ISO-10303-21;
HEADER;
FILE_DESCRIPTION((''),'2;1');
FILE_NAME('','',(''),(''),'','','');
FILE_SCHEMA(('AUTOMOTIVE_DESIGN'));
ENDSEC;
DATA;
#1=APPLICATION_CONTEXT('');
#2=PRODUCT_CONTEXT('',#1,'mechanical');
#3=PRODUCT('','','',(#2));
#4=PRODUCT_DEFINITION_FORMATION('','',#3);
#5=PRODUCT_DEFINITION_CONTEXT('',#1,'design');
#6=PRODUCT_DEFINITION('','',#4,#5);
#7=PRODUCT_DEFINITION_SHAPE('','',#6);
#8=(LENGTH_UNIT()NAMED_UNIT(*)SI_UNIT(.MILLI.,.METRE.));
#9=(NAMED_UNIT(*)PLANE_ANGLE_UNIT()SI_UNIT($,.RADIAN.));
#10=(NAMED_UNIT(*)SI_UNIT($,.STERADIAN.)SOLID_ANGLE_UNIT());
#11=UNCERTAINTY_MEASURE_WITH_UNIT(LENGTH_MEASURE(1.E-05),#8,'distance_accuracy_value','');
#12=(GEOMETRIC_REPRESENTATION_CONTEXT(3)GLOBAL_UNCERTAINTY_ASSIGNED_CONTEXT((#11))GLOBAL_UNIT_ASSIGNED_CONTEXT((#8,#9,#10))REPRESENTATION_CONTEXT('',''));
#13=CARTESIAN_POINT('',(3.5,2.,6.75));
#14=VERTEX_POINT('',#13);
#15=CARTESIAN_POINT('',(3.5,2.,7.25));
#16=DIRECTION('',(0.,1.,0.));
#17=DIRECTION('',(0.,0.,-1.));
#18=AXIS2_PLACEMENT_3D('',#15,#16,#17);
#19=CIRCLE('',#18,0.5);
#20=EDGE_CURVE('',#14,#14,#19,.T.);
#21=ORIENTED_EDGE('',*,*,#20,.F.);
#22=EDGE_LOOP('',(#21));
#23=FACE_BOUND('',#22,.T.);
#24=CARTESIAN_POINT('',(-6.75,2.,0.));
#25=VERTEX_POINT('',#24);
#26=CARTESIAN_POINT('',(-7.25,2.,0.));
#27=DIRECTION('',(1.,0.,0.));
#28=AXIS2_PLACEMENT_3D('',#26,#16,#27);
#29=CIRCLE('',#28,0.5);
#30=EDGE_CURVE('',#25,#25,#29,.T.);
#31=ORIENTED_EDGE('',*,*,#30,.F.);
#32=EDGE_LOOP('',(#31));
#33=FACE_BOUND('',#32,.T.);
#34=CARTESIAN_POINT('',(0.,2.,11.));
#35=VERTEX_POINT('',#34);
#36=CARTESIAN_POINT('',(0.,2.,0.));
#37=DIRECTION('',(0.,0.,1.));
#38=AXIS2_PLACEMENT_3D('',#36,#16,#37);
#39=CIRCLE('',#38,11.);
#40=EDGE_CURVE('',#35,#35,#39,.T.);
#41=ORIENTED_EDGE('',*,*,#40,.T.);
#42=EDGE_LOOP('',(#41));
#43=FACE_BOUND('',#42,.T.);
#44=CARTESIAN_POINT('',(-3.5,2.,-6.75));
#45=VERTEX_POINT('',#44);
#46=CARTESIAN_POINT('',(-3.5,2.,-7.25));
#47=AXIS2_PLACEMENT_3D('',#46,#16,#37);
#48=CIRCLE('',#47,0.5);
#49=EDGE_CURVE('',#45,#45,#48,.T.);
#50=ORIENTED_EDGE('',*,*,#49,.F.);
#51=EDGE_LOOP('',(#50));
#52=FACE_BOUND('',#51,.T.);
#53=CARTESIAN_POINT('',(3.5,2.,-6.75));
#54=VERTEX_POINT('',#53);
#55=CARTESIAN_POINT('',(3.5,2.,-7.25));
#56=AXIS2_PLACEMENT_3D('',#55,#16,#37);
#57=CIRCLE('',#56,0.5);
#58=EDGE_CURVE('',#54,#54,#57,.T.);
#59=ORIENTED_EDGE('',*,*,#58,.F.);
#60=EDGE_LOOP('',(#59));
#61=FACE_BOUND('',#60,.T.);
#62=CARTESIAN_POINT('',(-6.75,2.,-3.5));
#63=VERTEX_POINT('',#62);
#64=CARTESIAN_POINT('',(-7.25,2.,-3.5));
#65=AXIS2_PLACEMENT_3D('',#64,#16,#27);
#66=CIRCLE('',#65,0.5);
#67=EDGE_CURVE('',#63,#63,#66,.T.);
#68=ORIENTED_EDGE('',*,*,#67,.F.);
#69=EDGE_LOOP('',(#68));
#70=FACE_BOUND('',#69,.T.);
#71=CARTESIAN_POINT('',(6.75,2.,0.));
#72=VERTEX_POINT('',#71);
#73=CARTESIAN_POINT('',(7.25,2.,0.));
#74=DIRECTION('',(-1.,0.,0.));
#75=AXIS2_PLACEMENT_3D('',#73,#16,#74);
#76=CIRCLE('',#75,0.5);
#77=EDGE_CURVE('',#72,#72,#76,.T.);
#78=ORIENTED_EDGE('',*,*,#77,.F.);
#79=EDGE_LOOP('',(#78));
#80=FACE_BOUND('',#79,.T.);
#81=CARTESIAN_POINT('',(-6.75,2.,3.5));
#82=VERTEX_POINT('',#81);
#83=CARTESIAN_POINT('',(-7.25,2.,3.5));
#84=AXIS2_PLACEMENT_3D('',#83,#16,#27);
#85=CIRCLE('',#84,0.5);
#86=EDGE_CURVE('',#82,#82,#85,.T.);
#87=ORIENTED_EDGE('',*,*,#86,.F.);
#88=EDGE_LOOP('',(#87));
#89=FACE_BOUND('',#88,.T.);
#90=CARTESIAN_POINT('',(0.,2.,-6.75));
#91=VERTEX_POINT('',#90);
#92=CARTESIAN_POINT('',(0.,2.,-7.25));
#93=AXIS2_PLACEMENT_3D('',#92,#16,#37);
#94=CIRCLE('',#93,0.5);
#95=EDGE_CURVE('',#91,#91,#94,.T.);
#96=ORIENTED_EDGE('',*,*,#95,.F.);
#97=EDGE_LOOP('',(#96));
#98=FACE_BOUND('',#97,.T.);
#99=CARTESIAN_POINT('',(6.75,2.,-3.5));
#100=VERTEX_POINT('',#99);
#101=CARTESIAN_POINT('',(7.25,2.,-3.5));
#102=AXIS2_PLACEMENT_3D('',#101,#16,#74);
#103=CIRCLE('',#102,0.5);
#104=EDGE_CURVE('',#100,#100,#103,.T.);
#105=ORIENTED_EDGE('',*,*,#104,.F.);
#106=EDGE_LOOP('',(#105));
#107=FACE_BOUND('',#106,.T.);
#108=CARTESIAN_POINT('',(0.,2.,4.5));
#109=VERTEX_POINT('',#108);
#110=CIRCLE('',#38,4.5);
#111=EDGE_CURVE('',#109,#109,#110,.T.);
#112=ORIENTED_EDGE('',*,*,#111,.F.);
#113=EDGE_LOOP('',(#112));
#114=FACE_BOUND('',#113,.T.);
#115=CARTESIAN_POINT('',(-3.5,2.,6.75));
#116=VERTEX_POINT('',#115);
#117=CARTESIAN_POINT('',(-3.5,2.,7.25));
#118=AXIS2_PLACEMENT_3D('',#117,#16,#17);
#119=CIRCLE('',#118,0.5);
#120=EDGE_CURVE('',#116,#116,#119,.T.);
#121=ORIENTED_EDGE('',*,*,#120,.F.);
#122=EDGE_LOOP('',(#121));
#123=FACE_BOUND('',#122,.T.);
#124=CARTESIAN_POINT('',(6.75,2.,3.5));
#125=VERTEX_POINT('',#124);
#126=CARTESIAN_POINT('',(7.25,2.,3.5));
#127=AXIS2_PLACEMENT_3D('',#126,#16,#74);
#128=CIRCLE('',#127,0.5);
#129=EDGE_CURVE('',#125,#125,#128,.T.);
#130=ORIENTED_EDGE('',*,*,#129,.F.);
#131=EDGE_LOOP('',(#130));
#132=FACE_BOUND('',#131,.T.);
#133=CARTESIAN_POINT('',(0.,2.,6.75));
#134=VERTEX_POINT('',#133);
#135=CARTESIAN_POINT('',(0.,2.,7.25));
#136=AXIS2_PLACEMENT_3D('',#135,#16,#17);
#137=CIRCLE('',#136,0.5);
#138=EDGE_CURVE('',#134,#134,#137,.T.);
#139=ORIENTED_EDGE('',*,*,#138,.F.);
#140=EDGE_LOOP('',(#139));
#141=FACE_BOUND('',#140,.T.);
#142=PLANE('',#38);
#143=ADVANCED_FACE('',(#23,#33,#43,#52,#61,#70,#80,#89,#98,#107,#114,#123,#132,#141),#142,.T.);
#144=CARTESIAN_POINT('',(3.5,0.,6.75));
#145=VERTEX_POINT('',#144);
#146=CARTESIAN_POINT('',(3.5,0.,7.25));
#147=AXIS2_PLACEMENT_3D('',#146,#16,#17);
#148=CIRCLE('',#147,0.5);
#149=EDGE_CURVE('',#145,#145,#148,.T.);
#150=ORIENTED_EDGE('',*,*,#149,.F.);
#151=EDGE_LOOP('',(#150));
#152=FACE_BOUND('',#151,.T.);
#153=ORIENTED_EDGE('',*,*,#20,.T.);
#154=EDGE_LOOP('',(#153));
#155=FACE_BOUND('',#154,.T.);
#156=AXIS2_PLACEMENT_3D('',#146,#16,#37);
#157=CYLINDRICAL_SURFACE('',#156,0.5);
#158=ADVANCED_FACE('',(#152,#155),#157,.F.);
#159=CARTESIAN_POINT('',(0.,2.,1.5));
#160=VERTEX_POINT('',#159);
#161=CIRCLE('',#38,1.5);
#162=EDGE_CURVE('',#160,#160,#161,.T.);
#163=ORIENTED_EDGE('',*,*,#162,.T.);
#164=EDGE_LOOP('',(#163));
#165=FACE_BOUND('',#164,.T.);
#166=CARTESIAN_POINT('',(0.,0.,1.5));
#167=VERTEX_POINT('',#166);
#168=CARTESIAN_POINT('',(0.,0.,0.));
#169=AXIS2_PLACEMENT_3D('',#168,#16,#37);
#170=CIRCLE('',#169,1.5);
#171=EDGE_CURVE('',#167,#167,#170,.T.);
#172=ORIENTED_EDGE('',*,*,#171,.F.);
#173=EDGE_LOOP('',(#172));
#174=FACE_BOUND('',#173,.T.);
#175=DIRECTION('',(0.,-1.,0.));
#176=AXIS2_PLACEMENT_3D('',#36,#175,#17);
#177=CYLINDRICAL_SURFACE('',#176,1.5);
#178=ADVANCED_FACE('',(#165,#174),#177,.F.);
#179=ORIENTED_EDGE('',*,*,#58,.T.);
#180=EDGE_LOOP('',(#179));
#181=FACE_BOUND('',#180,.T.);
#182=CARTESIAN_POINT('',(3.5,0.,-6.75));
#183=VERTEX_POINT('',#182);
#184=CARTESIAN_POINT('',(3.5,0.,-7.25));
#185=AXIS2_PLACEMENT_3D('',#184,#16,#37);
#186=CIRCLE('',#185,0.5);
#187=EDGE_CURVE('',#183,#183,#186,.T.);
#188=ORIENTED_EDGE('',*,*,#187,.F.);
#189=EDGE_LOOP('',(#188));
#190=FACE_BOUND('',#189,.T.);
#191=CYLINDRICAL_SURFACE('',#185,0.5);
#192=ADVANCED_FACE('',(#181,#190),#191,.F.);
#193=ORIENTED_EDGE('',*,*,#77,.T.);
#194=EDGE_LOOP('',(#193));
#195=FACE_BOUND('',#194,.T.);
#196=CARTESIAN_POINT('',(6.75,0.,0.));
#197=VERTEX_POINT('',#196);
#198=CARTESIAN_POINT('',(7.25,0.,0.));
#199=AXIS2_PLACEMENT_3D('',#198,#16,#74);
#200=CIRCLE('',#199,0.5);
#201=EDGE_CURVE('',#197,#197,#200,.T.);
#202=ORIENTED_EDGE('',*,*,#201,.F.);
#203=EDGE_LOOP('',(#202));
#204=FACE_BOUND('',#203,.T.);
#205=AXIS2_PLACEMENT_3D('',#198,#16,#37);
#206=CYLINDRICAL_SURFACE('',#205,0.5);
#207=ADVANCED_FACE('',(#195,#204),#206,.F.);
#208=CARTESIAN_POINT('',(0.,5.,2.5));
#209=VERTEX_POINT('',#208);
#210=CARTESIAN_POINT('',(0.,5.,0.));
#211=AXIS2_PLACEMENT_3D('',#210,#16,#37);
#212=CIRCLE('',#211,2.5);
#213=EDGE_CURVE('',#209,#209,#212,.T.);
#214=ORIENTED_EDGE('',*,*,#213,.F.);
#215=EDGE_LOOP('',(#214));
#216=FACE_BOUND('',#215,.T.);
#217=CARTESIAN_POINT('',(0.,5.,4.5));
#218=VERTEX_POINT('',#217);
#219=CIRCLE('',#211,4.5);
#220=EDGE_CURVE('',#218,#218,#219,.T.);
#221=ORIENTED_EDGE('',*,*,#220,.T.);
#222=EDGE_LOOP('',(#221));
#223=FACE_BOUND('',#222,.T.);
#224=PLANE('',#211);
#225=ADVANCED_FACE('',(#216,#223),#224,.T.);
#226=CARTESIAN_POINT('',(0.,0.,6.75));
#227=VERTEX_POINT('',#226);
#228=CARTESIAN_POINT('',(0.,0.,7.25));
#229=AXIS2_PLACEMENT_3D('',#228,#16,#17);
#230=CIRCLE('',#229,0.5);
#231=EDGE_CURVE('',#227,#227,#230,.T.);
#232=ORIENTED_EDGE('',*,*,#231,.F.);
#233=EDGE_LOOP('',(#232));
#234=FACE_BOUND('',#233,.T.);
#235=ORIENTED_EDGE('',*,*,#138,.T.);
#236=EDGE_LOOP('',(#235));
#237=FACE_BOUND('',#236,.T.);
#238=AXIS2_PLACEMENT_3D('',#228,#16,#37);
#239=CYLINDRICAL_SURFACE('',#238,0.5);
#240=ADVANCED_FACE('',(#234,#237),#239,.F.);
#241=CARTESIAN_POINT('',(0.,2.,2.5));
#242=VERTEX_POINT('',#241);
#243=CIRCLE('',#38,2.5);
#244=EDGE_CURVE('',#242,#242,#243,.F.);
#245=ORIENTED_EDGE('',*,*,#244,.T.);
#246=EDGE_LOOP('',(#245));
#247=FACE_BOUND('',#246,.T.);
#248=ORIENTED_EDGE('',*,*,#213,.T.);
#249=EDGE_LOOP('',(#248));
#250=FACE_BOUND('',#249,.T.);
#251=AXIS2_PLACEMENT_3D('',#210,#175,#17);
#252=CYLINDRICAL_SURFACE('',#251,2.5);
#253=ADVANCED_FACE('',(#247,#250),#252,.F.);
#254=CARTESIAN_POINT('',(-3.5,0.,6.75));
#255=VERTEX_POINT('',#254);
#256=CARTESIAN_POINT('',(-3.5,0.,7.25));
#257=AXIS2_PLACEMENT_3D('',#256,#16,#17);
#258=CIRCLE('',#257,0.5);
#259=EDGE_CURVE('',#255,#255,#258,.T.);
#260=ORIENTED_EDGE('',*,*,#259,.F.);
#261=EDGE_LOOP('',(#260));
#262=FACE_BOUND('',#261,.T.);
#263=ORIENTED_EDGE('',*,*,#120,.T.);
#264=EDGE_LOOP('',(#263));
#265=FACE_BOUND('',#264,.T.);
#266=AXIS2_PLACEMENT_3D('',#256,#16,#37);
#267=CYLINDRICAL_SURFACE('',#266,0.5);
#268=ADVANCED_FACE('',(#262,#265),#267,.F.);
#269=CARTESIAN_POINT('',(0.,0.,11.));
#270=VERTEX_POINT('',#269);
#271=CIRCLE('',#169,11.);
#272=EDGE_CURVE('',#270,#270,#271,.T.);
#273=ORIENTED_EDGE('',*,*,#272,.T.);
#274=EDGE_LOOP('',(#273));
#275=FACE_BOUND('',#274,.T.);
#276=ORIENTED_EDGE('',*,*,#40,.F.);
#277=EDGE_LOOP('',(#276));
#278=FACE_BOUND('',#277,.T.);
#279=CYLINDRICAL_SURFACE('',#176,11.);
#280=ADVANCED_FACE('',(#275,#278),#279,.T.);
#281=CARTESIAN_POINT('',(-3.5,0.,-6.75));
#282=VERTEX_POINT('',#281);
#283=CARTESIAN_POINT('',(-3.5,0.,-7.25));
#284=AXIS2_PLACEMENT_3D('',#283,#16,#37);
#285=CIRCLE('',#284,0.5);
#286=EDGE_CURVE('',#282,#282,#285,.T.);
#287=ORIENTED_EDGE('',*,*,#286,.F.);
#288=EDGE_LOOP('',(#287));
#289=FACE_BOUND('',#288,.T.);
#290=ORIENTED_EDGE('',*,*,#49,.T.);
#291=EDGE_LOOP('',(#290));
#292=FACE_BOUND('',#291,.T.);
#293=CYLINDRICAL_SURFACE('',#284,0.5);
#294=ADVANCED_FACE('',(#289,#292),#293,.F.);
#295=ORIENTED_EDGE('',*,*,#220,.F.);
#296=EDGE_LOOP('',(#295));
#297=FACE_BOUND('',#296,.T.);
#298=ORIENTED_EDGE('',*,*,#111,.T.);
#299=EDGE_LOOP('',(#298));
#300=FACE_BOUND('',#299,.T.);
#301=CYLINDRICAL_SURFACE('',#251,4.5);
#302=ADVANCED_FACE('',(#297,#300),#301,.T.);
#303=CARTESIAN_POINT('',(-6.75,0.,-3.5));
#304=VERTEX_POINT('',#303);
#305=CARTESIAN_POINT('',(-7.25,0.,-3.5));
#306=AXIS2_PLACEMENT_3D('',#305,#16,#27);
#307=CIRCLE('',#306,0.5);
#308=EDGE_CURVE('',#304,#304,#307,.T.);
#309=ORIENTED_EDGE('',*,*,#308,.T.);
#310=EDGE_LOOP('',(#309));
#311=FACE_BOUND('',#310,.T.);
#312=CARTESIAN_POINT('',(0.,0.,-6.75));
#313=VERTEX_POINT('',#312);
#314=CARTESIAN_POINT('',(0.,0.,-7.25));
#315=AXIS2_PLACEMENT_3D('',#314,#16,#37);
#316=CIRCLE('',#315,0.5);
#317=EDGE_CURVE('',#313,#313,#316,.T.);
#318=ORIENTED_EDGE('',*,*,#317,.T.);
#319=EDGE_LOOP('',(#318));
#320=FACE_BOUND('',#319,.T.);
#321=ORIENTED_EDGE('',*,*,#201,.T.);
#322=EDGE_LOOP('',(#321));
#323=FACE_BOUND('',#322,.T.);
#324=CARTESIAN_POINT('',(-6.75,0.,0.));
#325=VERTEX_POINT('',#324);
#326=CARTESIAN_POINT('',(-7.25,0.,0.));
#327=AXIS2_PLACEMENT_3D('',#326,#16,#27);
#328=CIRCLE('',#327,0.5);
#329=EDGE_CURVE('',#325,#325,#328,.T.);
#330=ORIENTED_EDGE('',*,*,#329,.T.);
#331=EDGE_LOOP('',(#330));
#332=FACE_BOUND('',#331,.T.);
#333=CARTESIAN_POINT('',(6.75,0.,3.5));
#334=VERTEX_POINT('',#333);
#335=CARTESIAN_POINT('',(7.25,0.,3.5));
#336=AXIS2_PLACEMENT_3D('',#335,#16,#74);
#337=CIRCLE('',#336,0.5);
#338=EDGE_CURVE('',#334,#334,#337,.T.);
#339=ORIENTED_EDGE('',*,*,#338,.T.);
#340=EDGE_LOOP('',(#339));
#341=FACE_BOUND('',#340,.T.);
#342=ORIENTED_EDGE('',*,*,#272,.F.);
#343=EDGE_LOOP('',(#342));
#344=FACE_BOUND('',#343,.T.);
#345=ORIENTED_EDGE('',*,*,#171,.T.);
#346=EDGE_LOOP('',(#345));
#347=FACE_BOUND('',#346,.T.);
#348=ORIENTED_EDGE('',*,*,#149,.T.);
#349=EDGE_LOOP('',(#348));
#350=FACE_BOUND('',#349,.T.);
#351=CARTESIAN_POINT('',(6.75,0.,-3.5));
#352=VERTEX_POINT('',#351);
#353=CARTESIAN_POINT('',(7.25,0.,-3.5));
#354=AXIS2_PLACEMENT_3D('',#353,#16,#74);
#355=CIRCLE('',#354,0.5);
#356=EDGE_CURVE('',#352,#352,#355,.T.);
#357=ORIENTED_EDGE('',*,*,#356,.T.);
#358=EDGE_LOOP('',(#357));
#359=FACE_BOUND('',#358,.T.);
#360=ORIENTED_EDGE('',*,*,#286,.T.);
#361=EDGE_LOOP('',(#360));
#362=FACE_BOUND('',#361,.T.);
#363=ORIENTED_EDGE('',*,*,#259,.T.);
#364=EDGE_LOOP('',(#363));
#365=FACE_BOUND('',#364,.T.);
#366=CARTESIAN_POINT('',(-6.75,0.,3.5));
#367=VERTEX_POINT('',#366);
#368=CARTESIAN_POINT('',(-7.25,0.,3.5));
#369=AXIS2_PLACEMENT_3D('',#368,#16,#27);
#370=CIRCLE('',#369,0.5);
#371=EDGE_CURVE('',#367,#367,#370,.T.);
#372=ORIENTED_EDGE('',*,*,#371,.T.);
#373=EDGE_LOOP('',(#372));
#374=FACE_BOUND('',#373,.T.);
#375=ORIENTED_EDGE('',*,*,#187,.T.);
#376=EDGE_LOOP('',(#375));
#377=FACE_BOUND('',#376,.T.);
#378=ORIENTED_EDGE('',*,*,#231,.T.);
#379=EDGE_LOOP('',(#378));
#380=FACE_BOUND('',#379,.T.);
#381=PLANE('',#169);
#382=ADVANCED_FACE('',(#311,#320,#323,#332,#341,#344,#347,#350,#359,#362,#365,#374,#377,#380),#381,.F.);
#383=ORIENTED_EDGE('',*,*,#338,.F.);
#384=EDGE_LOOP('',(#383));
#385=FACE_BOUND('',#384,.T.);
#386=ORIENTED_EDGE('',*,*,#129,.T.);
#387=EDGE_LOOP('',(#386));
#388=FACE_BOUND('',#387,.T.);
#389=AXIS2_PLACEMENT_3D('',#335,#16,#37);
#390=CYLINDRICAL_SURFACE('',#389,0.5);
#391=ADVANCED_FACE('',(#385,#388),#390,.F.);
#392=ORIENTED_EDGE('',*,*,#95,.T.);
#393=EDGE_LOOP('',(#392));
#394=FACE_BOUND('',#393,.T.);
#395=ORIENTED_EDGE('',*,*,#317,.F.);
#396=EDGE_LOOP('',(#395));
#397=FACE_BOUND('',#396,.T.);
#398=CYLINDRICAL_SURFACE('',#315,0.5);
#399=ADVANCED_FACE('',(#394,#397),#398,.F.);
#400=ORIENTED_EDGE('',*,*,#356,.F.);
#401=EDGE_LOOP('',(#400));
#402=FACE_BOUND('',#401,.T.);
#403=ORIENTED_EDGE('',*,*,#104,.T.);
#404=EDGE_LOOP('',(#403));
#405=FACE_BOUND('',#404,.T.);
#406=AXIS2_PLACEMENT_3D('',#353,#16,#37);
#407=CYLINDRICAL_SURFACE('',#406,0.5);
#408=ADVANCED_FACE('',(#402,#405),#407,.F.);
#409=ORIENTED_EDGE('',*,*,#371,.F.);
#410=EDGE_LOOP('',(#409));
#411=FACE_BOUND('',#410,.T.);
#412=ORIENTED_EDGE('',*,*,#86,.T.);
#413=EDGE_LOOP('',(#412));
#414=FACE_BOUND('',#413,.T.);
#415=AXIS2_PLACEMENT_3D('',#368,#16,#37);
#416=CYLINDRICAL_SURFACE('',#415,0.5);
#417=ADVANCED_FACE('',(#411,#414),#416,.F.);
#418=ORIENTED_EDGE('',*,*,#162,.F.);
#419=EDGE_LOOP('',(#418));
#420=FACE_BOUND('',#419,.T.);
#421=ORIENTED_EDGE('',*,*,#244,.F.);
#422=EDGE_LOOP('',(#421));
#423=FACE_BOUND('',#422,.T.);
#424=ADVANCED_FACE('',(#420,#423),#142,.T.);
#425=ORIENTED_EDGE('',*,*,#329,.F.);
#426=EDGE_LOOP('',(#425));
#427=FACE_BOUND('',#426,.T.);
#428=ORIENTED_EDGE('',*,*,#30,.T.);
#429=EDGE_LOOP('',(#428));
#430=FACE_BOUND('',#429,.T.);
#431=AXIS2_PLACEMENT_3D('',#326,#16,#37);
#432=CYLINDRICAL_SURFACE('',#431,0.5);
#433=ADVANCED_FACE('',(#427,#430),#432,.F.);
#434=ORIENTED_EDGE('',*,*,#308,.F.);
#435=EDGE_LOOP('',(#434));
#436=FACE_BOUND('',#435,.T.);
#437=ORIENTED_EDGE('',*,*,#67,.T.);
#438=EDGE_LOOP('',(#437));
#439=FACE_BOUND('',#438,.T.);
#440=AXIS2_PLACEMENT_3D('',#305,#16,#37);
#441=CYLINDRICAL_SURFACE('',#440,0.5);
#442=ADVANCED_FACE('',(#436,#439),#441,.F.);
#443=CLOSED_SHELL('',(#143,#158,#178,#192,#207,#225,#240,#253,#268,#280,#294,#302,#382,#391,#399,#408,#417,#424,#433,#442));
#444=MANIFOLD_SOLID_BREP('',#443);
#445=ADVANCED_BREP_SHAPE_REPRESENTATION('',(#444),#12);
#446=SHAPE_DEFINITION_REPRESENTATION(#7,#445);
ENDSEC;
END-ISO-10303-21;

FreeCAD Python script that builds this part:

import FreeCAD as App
import Part
import Sketcher

doc = App.newDocument("Part")
body = doc.addObject("PartDesign::Body", "Body")

# Sketch on XZ plane
sketch1 = doc.addObject("Sketcher::SketchObject", "Sketch")
body.addObject(sketch1)
sketch1.AttachmentSupport = (doc.XZ_Plane, [""])
sketch1.MapMode = "FlatFace"
sketch1.addGeometry([
    Part.Circle(App.Vector(0, 0, 0), App.Vector(0, 0, 1), 11),
    Part.Circle(App.Vector(0, 0, 0), App.Vector(0, 0, 1), 1.5),
], False)
sketch1.addConstraint([
    Sketcher.Constraint("Coincident", 0, 3, -1, 1),
    Sketcher.Constraint("Coincident", 1, 3, -1, 1),
    Sketcher.Constraint("Diameter", 0, 22.0),
    Sketcher.Constraint("Diameter", 1, 3.0),
])
pad1 = doc.addObject("PartDesign::Pad", "Pad")
body.addObject(pad1)
pad1.Profile = sketch1
pad1.Length = 2
pad1.Reversed = True

# Sketch on XZ plane
sketch2 = doc.addObject("Sketcher::SketchObject", "Sketch001")
body.addObject(sketch2)
sketch2.AttachmentSupport = (doc.XZ_Plane, [""])
sketch2.MapMode = "FlatFace"
sketch2.AttachmentOffset = App.Placement(App.Vector(0, 0, -2), App.Rotation())
sketch2.addGeometry([
    Part.Circle(App.Vector(0, 0, 0), App.Vector(0, 0, 1), 4.5),
    Part.Circle(App.Vector(0, 0, 0), App.Vector(0, 0, 1), 2.5),
], False)
sketch2.addConstraint([
    Sketcher.Constraint("Coincident", 0, 3, -1, 1),
    Sketcher.Constraint("Coincident", 1, 3, -1, 1),
    Sketcher.Constraint("Diameter", 0, 9.0),
    Sketcher.Constraint("Diameter", 1, 5.0),
])
pad2 = doc.addObject("PartDesign::Pad", "Pad001")
body.addObject(pad2)
pad2.Profile = sketch2
pad2.Length = 3
pad2.Reversed = True

# Sketch on XZ plane
sketch3 = doc.addObject("Sketcher::SketchObject", "Sketch002")
body.addObject(sketch3)
sketch3.AttachmentSupport = (doc.XZ_Plane, [""])
sketch3.MapMode = "FlatFace"
sketch3.AttachmentOffset = App.Placement(App.Vector(0, 0, -2), App.Rotation())
sketch3.addGeometry([
    Part.Circle(App.Vector(-3.5, -7.25, 0), App.Vector(0, 0, 1), 0.5),
    Part.Circle(App.Vector(0, -7.25, 0), App.Vector(0, 0, 1), 0.5),
    Part.Circle(App.Vector(3.5, -7.25, 0), App.Vector(0, 0, 1), 0.5),
], False)
sketch3.addConstraint([
    Sketcher.Constraint("Equal", 0, 1),
    Sketcher.Constraint("Equal", 1, 2),
    Sketcher.Constraint("Symmetric", 0, 3, 2, 3, -2),
    Sketcher.Constraint("PointOnObject", 1, 3, -2),
    Sketcher.Constraint("Horizontal", 0, 3, 1, 3),
    Sketcher.Constraint("Diameter", 0, 1.0),
    Sketcher.Constraint("DistanceX", 0, 3, 2, 3, 7.0),
    Sketcher.Constraint("DistanceY", 0, 3, -1, 1, 7.25),
])
pocket1 = doc.addObject("PartDesign::Pocket", "Pocket")
body.addObject(pocket1)
pocket1.Profile = sketch3
pocket1.Type = "ThroughAll"
pocket1.Reversed = True
doc.recompute()

polarpattern = doc.addObject("PartDesign::PolarPattern", "PolarPattern")
body.addObject(polarpattern)
polarpattern.Originals = [pocket1]
polarpattern.Axis = (doc.Y_Axis, [""])
polarpattern.Angle = 360
polarpattern.Occurrences = 4
body.Tip = polarpattern

doc.recompute()
